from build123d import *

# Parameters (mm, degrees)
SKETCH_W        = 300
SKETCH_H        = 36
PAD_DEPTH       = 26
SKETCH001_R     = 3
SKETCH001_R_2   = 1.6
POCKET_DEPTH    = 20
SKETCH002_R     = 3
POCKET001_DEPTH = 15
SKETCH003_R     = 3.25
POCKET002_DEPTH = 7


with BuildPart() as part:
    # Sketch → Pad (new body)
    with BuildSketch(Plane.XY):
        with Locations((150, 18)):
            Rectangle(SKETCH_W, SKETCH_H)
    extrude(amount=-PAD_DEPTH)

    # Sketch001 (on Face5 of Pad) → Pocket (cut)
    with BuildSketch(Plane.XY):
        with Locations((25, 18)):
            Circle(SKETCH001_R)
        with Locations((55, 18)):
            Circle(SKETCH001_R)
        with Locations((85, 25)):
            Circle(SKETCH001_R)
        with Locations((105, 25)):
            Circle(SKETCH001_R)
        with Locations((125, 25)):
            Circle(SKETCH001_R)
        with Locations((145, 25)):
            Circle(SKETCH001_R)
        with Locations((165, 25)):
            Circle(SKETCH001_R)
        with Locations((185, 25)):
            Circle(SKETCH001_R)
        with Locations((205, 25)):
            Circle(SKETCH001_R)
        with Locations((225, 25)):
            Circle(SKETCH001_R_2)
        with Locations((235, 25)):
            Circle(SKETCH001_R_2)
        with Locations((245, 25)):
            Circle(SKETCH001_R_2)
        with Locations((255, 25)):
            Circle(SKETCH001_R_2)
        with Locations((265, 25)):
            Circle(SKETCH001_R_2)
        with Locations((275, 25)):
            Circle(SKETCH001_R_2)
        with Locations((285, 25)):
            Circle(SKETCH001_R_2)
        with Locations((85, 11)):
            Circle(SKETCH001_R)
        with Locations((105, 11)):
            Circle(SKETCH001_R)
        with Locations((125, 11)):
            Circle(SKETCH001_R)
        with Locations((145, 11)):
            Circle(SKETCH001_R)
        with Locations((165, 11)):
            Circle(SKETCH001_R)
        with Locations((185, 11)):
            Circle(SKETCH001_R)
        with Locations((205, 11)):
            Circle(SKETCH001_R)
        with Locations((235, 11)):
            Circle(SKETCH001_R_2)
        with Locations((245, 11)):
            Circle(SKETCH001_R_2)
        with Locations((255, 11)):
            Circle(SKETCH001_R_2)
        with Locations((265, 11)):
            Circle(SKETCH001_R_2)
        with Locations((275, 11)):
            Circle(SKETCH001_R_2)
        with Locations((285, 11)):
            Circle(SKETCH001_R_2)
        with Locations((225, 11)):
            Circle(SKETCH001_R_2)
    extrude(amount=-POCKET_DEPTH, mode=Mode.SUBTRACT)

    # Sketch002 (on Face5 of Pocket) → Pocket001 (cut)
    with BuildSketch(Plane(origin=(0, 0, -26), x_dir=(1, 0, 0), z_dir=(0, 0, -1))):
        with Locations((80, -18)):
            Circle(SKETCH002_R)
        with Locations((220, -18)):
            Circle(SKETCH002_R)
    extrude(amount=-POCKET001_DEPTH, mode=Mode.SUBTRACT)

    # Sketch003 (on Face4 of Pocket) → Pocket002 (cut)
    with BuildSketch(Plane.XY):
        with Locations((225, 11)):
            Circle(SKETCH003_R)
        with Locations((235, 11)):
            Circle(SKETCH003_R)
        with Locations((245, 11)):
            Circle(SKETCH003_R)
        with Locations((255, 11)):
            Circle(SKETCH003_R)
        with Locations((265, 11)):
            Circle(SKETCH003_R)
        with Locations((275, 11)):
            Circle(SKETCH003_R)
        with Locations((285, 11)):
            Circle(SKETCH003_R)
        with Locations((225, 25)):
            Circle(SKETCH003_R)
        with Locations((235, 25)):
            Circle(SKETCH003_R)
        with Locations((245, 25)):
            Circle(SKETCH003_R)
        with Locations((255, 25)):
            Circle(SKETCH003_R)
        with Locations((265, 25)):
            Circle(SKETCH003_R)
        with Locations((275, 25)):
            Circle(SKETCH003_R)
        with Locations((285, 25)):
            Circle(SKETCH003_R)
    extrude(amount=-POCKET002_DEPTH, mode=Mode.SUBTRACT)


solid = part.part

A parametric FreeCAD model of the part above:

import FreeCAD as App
import Part
import Sketcher


def add_polygon(sketch, points):
    """Adds a closed chain of lines whose ends are joined by coincident constraints."""
    first, n = sketch.GeometryCount, len(points)
    for a, b in zip(points, points[1:] + points[:1]):
        sketch.addGeometry(Part.LineSegment(App.Vector(*a, 0), App.Vector(*b, 0)), False)
    for i in range(n):
        sketch.addConstraint(Sketcher.Constraint("Coincident", first + i, 2, first + (i + 1) % n, 1))

doc = App.newDocument("Part")
body = doc.addObject("PartDesign::Body", "Body")

sketch1 = body.newObject("Sketcher::SketchObject", "Sketch")
sketch1.AttachmentSupport = (doc.getObject("XY_Plane"), [""])
sketch1.MapMode = "FlatFace"
add_polygon(sketch1, [(0, 36), (0, 0), (300, 0), (300, 36)])
sketch1.addConstraint([
    Sketcher.Constraint("Vertical", 0),
    Sketcher.Constraint("Horizontal", 1),
    Sketcher.Constraint("Vertical", 2),
    Sketcher.Constraint("Horizontal", 3),
    Sketcher.Constraint("Coincident", 0, 2, -1, 1),
    Sketcher.Constraint("DistanceX", 1, 1, 1, 2, 300.0),
    Sketcher.Constraint("DistanceY", 0, 2, 0, 1, 36.0),
])
pad1 = body.newObject("PartDesign::Pad", "Pad")
pad1.Profile = sketch1
pad1.Length = 26
pad1.Reversed = True

sketch2 = body.newObject("Sketcher::SketchObject", "Sketch001")
sketch2.AttachmentSupport = (doc.getObject("XY_Plane"), [""])
sketch2.MapMode = "FlatFace"
sketch2.addGeometry([
    Part.Circle(App.Vector(25, 18, 0), App.Vector(0, 0, 1), 3),
    Part.Circle(App.Vector(55, 18, 0), App.Vector(0, 0, 1), 3),
    Part.Circle(App.Vector(85, 25, 0), App.Vector(0, 0, 1), 3),
    Part.Circle(App.Vector(105, 25, 0), App.Vector(0, 0, 1), 3),
    Part.Circle(App.Vector(125, 25, 0), App.Vector(0, 0, 1), 3),
    Part.Circle(App.Vector(145, 25, 0), App.Vector(0, 0, 1), 3),
    Part.Circle(App.Vector(165, 25, 0), App.Vector(0, 0, 1), 3),
    Part.Circle(App.Vector(185, 25, 0), App.Vector(0, 0, 1), 3),
    Part.Circle(App.Vector(205, 25, 0), App.Vector(0, 0, 1), 3),
    Part.Circle(App.Vector(225, 25, 0), App.Vector(0, 0, 1), 1.6),
    Part.Circle(App.Vector(235, 25, 0), App.Vector(0, 0, 1), 1.6),
    Part.Circle(App.Vector(245, 25, 0), App.Vector(0, 0, 1), 1.6),
    Part.Circle(App.Vector(255, 25, 0), App.Vector(0, 0, 1), 1.6),
    Part.Circle(App.Vector(265, 25, 0), App.Vector(0, 0, 1), 1.6),
    Part.Circle(App.Vector(275, 25, 0), App.Vector(0, 0, 1), 1.6),
    Part.Circle(App.Vector(285, 25, 0), App.Vector(0, 0, 1), 1.6),
    Part.Circle(App.Vector(85, 11, 0), App.Vector(0, 0, 1), 3),
    Part.Circle(App.Vector(105, 11, 0), App.Vector(0, 0, 1), 3),
    Part.Circle(App.Vector(125, 11, 0), App.Vector(0, 0, 1), 3),
    Part.Circle(App.Vector(145, 11, 0), App.Vector(0, 0, 1), 3),
    Part.Circle(App.Vector(165, 11, 0), App.Vector(0, 0, 1), 3),
    Part.Circle(App.Vector(185, 11, 0), App.Vector(0, 0, 1), 3),
    Part.Circle(App.Vector(205, 11, 0), App.Vector(0, 0, 1), 3),
    Part.Circle(App.Vector(235, 11, 0), App.Vector(0, 0, 1), 1.6),
    Part.Circle(App.Vector(245, 11, 0), App.Vector(0, 0, 1), 1.6),
    Part.Circle(App.Vector(255, 11, 0), App.Vector(0, 0, 1), 1.6),
    Part.Circle(App.Vector(265, 11, 0), App.Vector(0, 0, 1), 1.6),
    Part.Circle(App.Vector(275, 11, 0), App.Vector(0, 0, 1), 1.6),
    Part.Circle(App.Vector(285, 11, 0), App.Vector(0, 0, 1), 1.6),
    Part.Circle(App.Vector(225, 11, 0), App.Vector(0, 0, 1), 1.6),
], False)
sketch2.addConstraint([
    Sketcher.Constraint("Equal", 0, 1),
    Sketcher.Constraint("Equal", 1, 2),
    Sketcher.Constraint("Equal", 2, 3),
    Sketcher.Constraint("Equal", 3, 4),
    Sketcher.Constraint("Equal", 4, 5),
    Sketcher.Constraint("Equal", 5, 6),
    Sketcher.Constraint("Equal", 6, 7),
    Sketcher.Constraint("Equal", 7, 8),
    Sketcher.Constraint("Equal", 9, 10),
    Sketcher.Constraint("Equal", 10, 11),
    Sketcher.Constraint("Equal", 11, 12),
    Sketcher.Constraint("Equal", 12, 13),
    Sketcher.Constraint("Equal", 13, 14),
    Sketcher.Constraint("Equal", 14, 15),
    Sketcher.Constraint("Equal", 8, 16),
    Sketcher.Constraint("Equal", 16, 17),
    Sketcher.Constraint("Equal", 17, 18),
    Sketcher.Constraint("Equal", 18, 19),
    Sketcher.Constraint("Equal", 19, 20),
    Sketcher.Constraint("Equal", 20, 21),
    Sketcher.Constraint("Equal", 21, 22),
    Sketcher.Constraint("Equal", 15, 23),
    Sketcher.Constraint("Equal", 23, 24),
    Sketcher.Constraint("Equal", 24, 25),
    Sketcher.Constraint("Equal", 25, 26),
    Sketcher.Constraint("Equal", 26, 27),
    Sketcher.Constraint("Equal", 27, 28),
    Sketcher.Constraint("Equal", 28, 29),
    Sketcher.Constraint("Horizontal", 0, 3, 1, 3),
    Sketcher.Constraint("Horizontal", 2, 3, 3, 3),
    Sketcher.Constraint("Horizontal", 3, 3, 4, 3),
    Sketcher.Constraint("Horizontal", 4, 3, 5, 3),
    Sketcher.Constraint("Horizontal", 5, 3, 6, 3),
    Sketcher.Constraint("Horizontal", 6, 3, 7, 3),
    Sketcher.Constraint("Horizontal", 7, 3, 8, 3),
    Sketcher.Constraint("Horizontal", 8, 3, 9, 3),
    Sketcher.Constraint("Horizontal", 9, 3, 10, 3),
    Sketcher.Constraint("Horizontal", 10, 3, 11, 3),
    Sketcher.Constraint("Horizontal", 11, 3, 12, 3),
    Sketcher.Constraint("Horizontal", 12, 3, 13, 3),
    Sketcher.Constraint("Horizontal", 13, 3, 14, 3),
    Sketcher.Constraint("Horizontal", 14, 3, 15, 3),
    Sketcher.Constraint("Horizontal", 16, 3, 17, 3),
    Sketcher.Constraint("Horizontal", 17, 3, 18, 3),
    Sketcher.Constraint("Horizontal", 18, 3, 19, 3),
    Sketcher.Constraint("Horizontal", 19, 3, 20, 3),
    Sketcher.Constraint("Horizontal", 20, 3, 21, 3),
    Sketcher.Constraint("Horizontal", 21, 3, 22, 3),
    Sketcher.Constraint("Horizontal", 22, 3, 23, 3),
    Sketcher.Constraint("Horizontal", 23, 3, 24, 3),
    Sketcher.Constraint("Horizontal", 24, 3, 25, 3),
    Sketcher.Constraint("Horizontal", 25, 3, 26, 3),
    Sketcher.Constraint("Horizontal", 26, 3, 27, 3),
    Sketcher.Constraint("Horizontal", 27, 3, 28, 3),
    Sketcher.Constraint("Horizontal", 28, 3, 29, 3),
    Sketcher.Constraint("Vertical", 2, 3, 16, 3),
    Sketcher.Constraint("Vertical", 3, 3, 17, 3),
    Sketcher.Constraint("Vertical", 4, 3, 18, 3),
    Sketcher.Constraint("Vertical", 5, 3, 19, 3),
    Sketcher.Constraint("Vertical", 6, 3, 20, 3),
    Sketcher.Constraint("Vertical", 7, 3, 21, 3),
    Sketcher.Constraint("Vertical", 8, 3, 22, 3),
    Sketcher.Constraint("Vertical", 10, 3, 23, 3),
    Sketcher.Constraint("Vertical", 11, 3, 24, 3),
    Sketcher.Constraint("Vertical", 12, 3, 25, 3),
    Sketcher.Constraint("Vertical", 13, 3, 26, 3),
    Sketcher.Constraint("Vertical", 14, 3, 27, 3),
    Sketcher.Constraint("Vertical", 15, 3, 28, 3),
    Sketcher.Constraint("Vertical", 9, 3, 29, 3),
    Sketcher.Constraint("Diameter", 0, 6.0),
    Sketcher.Constraint("Diameter", 9, 3.2),
    Sketcher.Constraint("DistanceX", -1, 1, 0, 3, 25.0),
    Sketcher.Constraint("DistanceY", -1, 1, 0, 3, 18.0),
    Sketcher.Constraint("DistanceX", -1, 1, 1, 3, 55.0),
    Sketcher.Constraint("DistanceX", -1, 1, 2, 3, 85.0),
    Sketcher.Constraint("DistanceY", -1, 1, 2, 3, 25.0),
    Sketcher.Constraint("DistanceX", -1, 1, 3, 3, 105.0),
    Sketcher.Constraint("DistanceX", -1, 1, 4, 3, 125.0),
    Sketcher.Constraint("DistanceX", -1, 1, 5, 3, 145.0),
    Sketcher.Constraint("DistanceX", -1, 1, 6, 3, 165.0),
    Sketcher.Constraint("DistanceX", -1, 1, 7, 3, 185.0),
    Sketcher.Constraint("DistanceX", -1, 1, 8, 3, 205.0),
    Sketcher.Constraint("DistanceX", -1, 1, 9, 3, 225.0),
    Sketcher.Constraint("DistanceX", -1, 1, 10, 3, 235.0),
    Sketcher.Constraint("DistanceX", -1, 1, 11, 3, 245.0),
    Sketcher.Constraint("DistanceX", -1, 1, 12, 3, 255.0),
    Sketcher.Constraint("DistanceX", -1, 1, 13, 3, 265.0),
    Sketcher.Constraint("DistanceX", -1, 1, 14, 3, 275.0),
    Sketcher.Constraint("DistanceX", -1, 1, 15, 3, 285.0),
    Sketcher.Constraint("DistanceY", -1, 1, 16, 3, 11.0),
])
pocket1 = body.newObject("PartDesign::Pocket", "Pocket")
pocket1.Profile = sketch2
pocket1.Length = 20

sketch3 = body.newObject("Sketcher::SketchObject", "Sketch002")
sketch3.AttachmentSupport = (doc.getObject("XY_Plane"), [""])
sketch3.MapMode = "FlatFace"
sketch3.AttachmentOffset = App.Placement(App.Vector(0, 0, -26), App.Rotation())
sketch3.addGeometry([
    Part.Circle(App.Vector(80, 18, 0), App.Vector(0, 0, 1), 3),
    Part.Circle(App.Vector(220, 18, 0), App.Vector(0, 0, 1), 3),
], False)
sketch3.addConstraint([
    Sketcher.Constraint("Equal", 0, 1),
    Sketcher.Constraint("Horizontal", 0, 3, 1, 3),
    Sketcher.Constraint("Diameter", 0, 6.0),
    Sketcher.Constraint("DistanceX", -1, 1, 0, 3, 80.0),
    Sketcher.Constraint("DistanceY", -1, 1, 0, 3, 18.0),
    Sketcher.Constraint("DistanceX", -1, 1, 1, 3, 220.0),
])
pocket2 = body.newObject("PartDesign::Pocket", "Pocket001")
pocket2.Profile = sketch3
pocket2.Length = 15
pocket2.Reversed = True

sketch4 = body.newObject("Sketcher::SketchObject", "Sketch003")
sketch4.AttachmentSupport = (doc.getObject("XY_Plane"), [""])
sketch4.MapMode = "FlatFace"
sketch4.addGeometry([
    Part.Circle(App.Vector(225, 11, 0), App.Vector(0, 0, 1), 3.2),
    Part.Circle(App.Vector(235, 11, 0), App.Vector(0, 0, 1), 3.2),
    Part.Circle(App.Vector(245, 11, 0), App.Vector(0, 0, 1), 3.2),
    Part.Circle(App.Vector(255, 11, 0), App.Vector(0, 0, 1), 3.2),
    Part.Circle(App.Vector(265, 11, 0), App.Vector(0, 0, 1), 3.2),
    Part.Circle(App.Vector(275, 11, 0), App.Vector(0, 0, 1), 3.2),
    Part.Circle(App.Vector(285, 11, 0), App.Vector(0, 0, 1), 3.2),
    Part.Circle(App.Vector(225, 25, 0), App.Vector(0, 0, 1), 3.2),
    Part.Circle(App.Vector(235, 25, 0), App.Vector(0, 0, 1), 3.2),
    Part.Circle(App.Vector(245, 25, 0), App.Vector(0, 0, 1), 3.2),
    Part.Circle(App.Vector(255, 25, 0), App.Vector(0, 0, 1), 3.2),
    Part.Circle(App.Vector(265, 25, 0), App.Vector(0, 0, 1), 3.2),
    Part.Circle(App.Vector(275, 25, 0), App.Vector(0, 0, 1), 3.2),
    Part.Circle(App.Vector(285, 25, 0), App.Vector(0, 0, 1), 3.2),
], False)
sketch4.addConstraint([
    Sketcher.Constraint("Equal", 0, 1),
    Sketcher.Constraint("Equal", 1, 2),
    Sketcher.Constraint("Equal", 2, 3),
    Sketcher.Constraint("Equal", 3, 4),
    Sketcher.Constraint("Equal", 4, 5),
    Sketcher.Constraint("Equal", 5, 6),
    Sketcher.Constraint("Equal", 6, 7),
    Sketcher.Constraint("Equal", 7, 8),
    Sketcher.Constraint("Equal", 8, 9),
    Sketcher.Constraint("Equal", 9, 10),
    Sketcher.Constraint("Equal", 10, 11),
    Sketcher.Constraint("Equal", 11, 12),
    Sketcher.Constraint("Equal", 12, 13),
    Sketcher.Constraint("Horizontal", 0, 3, 1, 3),
    Sketcher.Constraint("Horizontal", 1, 3, 2, 3),
    Sketcher.Constraint("Horizontal", 2, 3, 3, 3),
    Sketcher.Constraint("Horizontal", 3, 3, 4, 3),
    Sketcher.Constraint("Horizontal", 4, 3, 5, 3),
    Sketcher.Constraint("Horizontal", 5, 3, 6, 3),
    Sketcher.Constraint("Horizontal", 7, 3, 8, 3),
    Sketcher.Constraint("Horizontal", 8, 3, 9, 3),
    Sketcher.Constraint("Horizontal", 9, 3, 10, 3),
    Sketcher.Constraint("Horizontal", 10, 3, 11, 3),
    Sketcher.Constraint("Horizontal", 11, 3, 12, 3),
    Sketcher.Constraint("Horizontal", 12, 3, 13, 3),
    Sketcher.Constraint("Vertical", 0, 3, 7, 3),
    Sketcher.Constraint("Vertical", 1, 3, 8, 3),
    Sketcher.Constraint("Vertical", 2, 3, 9, 3),
    Sketcher.Constraint("Vertical", 3, 3, 10, 3),
    Sketcher.Constraint("Vertical", 4, 3, 11, 3),
    Sketcher.Constraint("Vertical", 5, 3, 12, 3),
    Sketcher.Constraint("Vertical", 6, 3, 13, 3),
    Sketcher.Constraint("Diameter", 0, 6.5),
    Sketcher.Constraint("DistanceX", -1, 1, 0, 3, 225.0),
    Sketcher.Constraint("DistanceY", -1, 1, 0, 3, 11.0),
    Sketcher.Constraint("DistanceX", -1, 1, 1, 3, 235.0),
    Sketcher.Constraint("DistanceX", -1, 1, 2, 3, 245.0),
    Sketcher.Constraint("DistanceX", -1, 1, 3, 3, 255.0),
    Sketcher.Constraint("DistanceX", -1, 1, 4, 3, 265.0),
    Sketcher.Constraint("DistanceX", -1, 1, 5, 3, 275.0),
    Sketcher.Constraint("DistanceX", -1, 1, 6, 3, 285.0),
    Sketcher.Constraint("DistanceY", -1, 1, 7, 3, 25.0),
])
pocket3 = body.newObject("PartDesign::Pocket", "Pocket002")
pocket3.Profile = sketch4
pocket3.Length = 7

doc.recompute()
